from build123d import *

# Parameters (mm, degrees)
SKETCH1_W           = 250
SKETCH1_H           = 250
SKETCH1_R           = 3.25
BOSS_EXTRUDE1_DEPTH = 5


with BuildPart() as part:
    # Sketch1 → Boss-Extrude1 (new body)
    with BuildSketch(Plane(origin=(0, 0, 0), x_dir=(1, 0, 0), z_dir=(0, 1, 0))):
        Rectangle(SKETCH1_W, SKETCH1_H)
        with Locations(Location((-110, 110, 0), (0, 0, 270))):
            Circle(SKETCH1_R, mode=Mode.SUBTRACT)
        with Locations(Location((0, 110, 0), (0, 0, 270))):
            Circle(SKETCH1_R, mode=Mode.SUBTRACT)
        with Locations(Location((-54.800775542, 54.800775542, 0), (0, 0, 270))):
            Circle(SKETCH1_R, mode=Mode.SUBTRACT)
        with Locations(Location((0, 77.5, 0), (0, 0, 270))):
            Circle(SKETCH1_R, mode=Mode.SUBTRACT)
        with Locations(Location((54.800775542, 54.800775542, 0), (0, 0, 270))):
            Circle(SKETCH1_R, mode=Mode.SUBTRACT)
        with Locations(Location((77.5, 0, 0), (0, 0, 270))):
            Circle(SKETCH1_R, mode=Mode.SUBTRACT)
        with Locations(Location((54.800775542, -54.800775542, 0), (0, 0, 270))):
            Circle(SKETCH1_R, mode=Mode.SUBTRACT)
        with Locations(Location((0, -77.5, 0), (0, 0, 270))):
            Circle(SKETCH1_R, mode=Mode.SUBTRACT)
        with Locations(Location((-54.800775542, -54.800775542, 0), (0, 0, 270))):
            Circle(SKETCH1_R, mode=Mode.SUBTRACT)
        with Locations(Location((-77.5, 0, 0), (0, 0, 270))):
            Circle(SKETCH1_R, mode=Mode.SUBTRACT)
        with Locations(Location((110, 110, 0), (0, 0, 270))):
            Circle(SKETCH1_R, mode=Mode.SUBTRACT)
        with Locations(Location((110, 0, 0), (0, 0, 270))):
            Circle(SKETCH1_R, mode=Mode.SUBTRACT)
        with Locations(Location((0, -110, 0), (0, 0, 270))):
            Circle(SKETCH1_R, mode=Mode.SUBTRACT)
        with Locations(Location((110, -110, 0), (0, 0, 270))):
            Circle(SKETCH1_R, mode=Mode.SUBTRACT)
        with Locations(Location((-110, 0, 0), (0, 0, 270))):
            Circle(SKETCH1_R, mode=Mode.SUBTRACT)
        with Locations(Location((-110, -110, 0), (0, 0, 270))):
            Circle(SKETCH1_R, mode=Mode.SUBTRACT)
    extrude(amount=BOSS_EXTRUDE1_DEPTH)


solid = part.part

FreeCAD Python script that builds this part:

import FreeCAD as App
import Part
import Sketcher
from FreeCAD import Vector


def add_polygon(sketch, points):
    """Adds a closed chain of lines whose ends are joined by coincident constraints."""
    first, n = sketch.GeometryCount, len(points)
    for a, b in zip(points, points[1:] + points[:1]):
        sketch.addGeometry(Part.LineSegment(App.Vector(*a, 0), App.Vector(*b, 0)), False)
    for i in range(n):
        sketch.addConstraint(Sketcher.Constraint("Coincident", first + i, 2, first + (i + 1) % n, 1))

doc = App.newDocument("Part")
body = doc.addObject("PartDesign::Body", "Body")

# Sketch on XZ plane
sketch1 = doc.addObject("Sketcher::SketchObject", "Sketch")
body.addObject(sketch1)
sketch1.AttachmentSupport = (doc.XZ_Plane, [""])
sketch1.MapMode = "FlatFace"
add_polygon(sketch1, [(-125, -125), (-125, 125), (125, 125), (125, -125)])  # lines 0-3
sketch1.addGeometry(Part.Circle(Vector(-110, 110, 0), Vector(0, 0, 1), 3.2), False)  # 4
sketch1.addGeometry(Part.Circle(Vector(-54.8, 54.8, 0), Vector(0, 0, 1), 3.2), False)  # 5
sketch1.addGeometry(Part.Circle(Vector(0, 110, 0), Vector(0, 0, 1), 3.2), False)  # 6
sketch1.addGeometry(Part.Circle(Vector(0, 77.5, 0), Vector(0, 0, 1), 3.2), False)  # 7
sketch1.addGeometry(Part.Circle(Vector(110, 110, 0), Vector(0, 0, 1), 3.2), False)  # 8
sketch1.addGeometry(Part.Circle(Vector(54.8, 54.8, 0), Vector(0, 0, 1), 3.2), False)  # 9
sketch1.addGeometry(Part.Circle(Vector(-110, 0, 0), Vector(0, 0, 1), 3.2), False)  # 10
sketch1.addGeometry(Part.Circle(Vector(-77.5, 0, 0), Vector(0, 0, 1), 3.2), False)  # 11
sketch1.addGeometry(Part.Circle(Vector(-54.8, -54.8, 0), Vector(0, 0, 1), 3.2), False)  # 12
sketch1.addGeometry(Part.Circle(Vector(-110, -110, 0), Vector(0, 0, 1), 3.2), False)  # 13
sketch1.addGeometry(Part.Circle(Vector(54.8, -54.8, 0), Vector(0, 0, 1), 3.2), False)  # 14
sketch1.addGeometry(Part.Circle(Vector(77.5, 0, 0), Vector(0, 0, 1), 3.2), False)  # 15
sketch1.addGeometry(Part.Circle(Vector(110, 0, 0), Vector(0, 0, 1), 3.2), False)  # 16
sketch1.addGeometry(Part.Circle(Vector(0, -77.5, 0), Vector(0, 0, 1), 3.2), False)  # 17
sketch1.addGeometry(Part.Circle(Vector(0, -110, 0), Vector(0, 0, 1), 3.2), False)  # 18
sketch1.addGeometry(Part.Circle(Vector(110, -110, 0), Vector(0, 0, 1), 3.2), False)  # 19
sketch1.addConstraint(Sketcher.Constraint("Vertical", 0))
sketch1.addConstraint(Sketcher.Constraint("Horizontal", 1))
sketch1.addConstraint(Sketcher.Constraint("Vertical", 2))
sketch1.addConstraint(Sketcher.Constraint("Horizontal", 3))
sketch1.addConstraint(Sketcher.Constraint("Equal", 4, 5))
sketch1.addConstraint(Sketcher.Constraint("Equal", 5, 6))
sketch1.addConstraint(Sketcher.Constraint("Equal", 6, 7))
sketch1.addConstraint(Sketcher.Constraint("Equal", 7, 8))
sketch1.addConstraint(Sketcher.Constraint("Equal", 8, 9))
sketch1.addConstraint(Sketcher.Constraint("Equal", 9, 10))
sketch1.addConstraint(Sketcher.Constraint("Equal", 10, 11))
sketch1.addConstraint(Sketcher.Constraint("Equal", 11, 12))
sketch1.addConstraint(Sketcher.Constraint("Equal", 12, 13))
sketch1.addConstraint(Sketcher.Constraint("Equal", 13, 14))
sketch1.addConstraint(Sketcher.Constraint("Equal", 14, 15))
sketch1.addConstraint(Sketcher.Constraint("Equal", 15, 16))
sketch1.addConstraint(Sketcher.Constraint("Equal", 16, 17))
sketch1.addConstraint(Sketcher.Constraint("Equal", 17, 18))
sketch1.addConstraint(Sketcher.Constraint("Equal", 18, 19))
sketch1.addConstraint(Sketcher.Constraint("Symmetric", 9, 3, 12, 3, -1, 1))
sketch1.addConstraint(Sketcher.Constraint("Symmetric", 8, 3, 13, 3, -1, 1))
sketch1.addConstraint(Sketcher.Constraint("Symmetric", 5, 3, 14, 3, -1, 1))
sketch1.addConstraint(Sketcher.Constraint("Symmetric", 11, 3, 15, 3, -1, 1))
sketch1.addConstraint(Sketcher.Constraint("Symmetric", 10, 3, 16, 3, -1, 1))
sketch1.addConstraint(Sketcher.Constraint("Symmetric", 7, 3, 17, 3, -1, 1))
sketch1.addConstraint(Sketcher.Constraint("Symmetric", 6, 3, 18, 3, -1, 1))
sketch1.addConstraint(Sketcher.Constraint("Symmetric", 4, 3, 19, 3, -1, 1))
sketch1.addConstraint(Sketcher.Constraint("Symmetric", 0, 2, 2, 2, -1, 1))
sketch1.addConstraint(Sketcher.Constraint("Symmetric", 4, 3, 8, 3, -2))
sketch1.addConstraint(Sketcher.Constraint("Symmetric", 5, 3, 9, 3, -2))
sketch1.addConstraint(Sketcher.Constraint("PointOnObject", 6, 3, -2))
sketch1.addConstraint(Sketcher.Constraint("PointOnObject", 7, 3, -2))
sketch1.addConstraint(Sketcher.Constraint("PointOnObject", 10, 3, -1))
sketch1.addConstraint(Sketcher.Constraint("PointOnObject", 11, 3, -1))
sketch1.addConstraint(Sketcher.Constraint("Horizontal", 4, 3, 6, 3))
sketch1.addConstraint(Sketcher.Constraint("Vertical", 4, 3, 10, 3))
sketch1.addConstraint(Sketcher.Constraint("Equal", 3, 0))
sketch1.addConstraint(Sketcher.Constraint("Diameter", 4, 6.5))
sketch1.addConstraint(Sketcher.Constraint("DistanceX", 1, 1, 1, 2, 250.0))
sketch1.addConstraint(Sketcher.Constraint("DistanceX", 4, 3, -1, 1, 110.0))
sketch1.addConstraint(Sketcher.Constraint("DistanceY", -1, 1, 4, 3, 110.0))
sketch1.addConstraint(Sketcher.Constraint("DistanceY", -1, 1, 7, 3, 77.5))
sketch1.addConstraint(Sketcher.Constraint("DistanceX", 11, 3, -1, 1, 77.5))
sketch1.addConstraint(Sketcher.Constraint("DistanceX", 5, 3, 9, 3, 109.601551))
sketch1.addConstraint(Sketcher.Constraint("DistanceY", 12, 3, 5, 3, 109.601551))
pad1 = doc.addObject("PartDesign::Pad", "Pad")
body.addObject(pad1)
pad1.Profile = sketch1
pad1.Length = 5
pad1.Reversed = True

doc.recompute()
